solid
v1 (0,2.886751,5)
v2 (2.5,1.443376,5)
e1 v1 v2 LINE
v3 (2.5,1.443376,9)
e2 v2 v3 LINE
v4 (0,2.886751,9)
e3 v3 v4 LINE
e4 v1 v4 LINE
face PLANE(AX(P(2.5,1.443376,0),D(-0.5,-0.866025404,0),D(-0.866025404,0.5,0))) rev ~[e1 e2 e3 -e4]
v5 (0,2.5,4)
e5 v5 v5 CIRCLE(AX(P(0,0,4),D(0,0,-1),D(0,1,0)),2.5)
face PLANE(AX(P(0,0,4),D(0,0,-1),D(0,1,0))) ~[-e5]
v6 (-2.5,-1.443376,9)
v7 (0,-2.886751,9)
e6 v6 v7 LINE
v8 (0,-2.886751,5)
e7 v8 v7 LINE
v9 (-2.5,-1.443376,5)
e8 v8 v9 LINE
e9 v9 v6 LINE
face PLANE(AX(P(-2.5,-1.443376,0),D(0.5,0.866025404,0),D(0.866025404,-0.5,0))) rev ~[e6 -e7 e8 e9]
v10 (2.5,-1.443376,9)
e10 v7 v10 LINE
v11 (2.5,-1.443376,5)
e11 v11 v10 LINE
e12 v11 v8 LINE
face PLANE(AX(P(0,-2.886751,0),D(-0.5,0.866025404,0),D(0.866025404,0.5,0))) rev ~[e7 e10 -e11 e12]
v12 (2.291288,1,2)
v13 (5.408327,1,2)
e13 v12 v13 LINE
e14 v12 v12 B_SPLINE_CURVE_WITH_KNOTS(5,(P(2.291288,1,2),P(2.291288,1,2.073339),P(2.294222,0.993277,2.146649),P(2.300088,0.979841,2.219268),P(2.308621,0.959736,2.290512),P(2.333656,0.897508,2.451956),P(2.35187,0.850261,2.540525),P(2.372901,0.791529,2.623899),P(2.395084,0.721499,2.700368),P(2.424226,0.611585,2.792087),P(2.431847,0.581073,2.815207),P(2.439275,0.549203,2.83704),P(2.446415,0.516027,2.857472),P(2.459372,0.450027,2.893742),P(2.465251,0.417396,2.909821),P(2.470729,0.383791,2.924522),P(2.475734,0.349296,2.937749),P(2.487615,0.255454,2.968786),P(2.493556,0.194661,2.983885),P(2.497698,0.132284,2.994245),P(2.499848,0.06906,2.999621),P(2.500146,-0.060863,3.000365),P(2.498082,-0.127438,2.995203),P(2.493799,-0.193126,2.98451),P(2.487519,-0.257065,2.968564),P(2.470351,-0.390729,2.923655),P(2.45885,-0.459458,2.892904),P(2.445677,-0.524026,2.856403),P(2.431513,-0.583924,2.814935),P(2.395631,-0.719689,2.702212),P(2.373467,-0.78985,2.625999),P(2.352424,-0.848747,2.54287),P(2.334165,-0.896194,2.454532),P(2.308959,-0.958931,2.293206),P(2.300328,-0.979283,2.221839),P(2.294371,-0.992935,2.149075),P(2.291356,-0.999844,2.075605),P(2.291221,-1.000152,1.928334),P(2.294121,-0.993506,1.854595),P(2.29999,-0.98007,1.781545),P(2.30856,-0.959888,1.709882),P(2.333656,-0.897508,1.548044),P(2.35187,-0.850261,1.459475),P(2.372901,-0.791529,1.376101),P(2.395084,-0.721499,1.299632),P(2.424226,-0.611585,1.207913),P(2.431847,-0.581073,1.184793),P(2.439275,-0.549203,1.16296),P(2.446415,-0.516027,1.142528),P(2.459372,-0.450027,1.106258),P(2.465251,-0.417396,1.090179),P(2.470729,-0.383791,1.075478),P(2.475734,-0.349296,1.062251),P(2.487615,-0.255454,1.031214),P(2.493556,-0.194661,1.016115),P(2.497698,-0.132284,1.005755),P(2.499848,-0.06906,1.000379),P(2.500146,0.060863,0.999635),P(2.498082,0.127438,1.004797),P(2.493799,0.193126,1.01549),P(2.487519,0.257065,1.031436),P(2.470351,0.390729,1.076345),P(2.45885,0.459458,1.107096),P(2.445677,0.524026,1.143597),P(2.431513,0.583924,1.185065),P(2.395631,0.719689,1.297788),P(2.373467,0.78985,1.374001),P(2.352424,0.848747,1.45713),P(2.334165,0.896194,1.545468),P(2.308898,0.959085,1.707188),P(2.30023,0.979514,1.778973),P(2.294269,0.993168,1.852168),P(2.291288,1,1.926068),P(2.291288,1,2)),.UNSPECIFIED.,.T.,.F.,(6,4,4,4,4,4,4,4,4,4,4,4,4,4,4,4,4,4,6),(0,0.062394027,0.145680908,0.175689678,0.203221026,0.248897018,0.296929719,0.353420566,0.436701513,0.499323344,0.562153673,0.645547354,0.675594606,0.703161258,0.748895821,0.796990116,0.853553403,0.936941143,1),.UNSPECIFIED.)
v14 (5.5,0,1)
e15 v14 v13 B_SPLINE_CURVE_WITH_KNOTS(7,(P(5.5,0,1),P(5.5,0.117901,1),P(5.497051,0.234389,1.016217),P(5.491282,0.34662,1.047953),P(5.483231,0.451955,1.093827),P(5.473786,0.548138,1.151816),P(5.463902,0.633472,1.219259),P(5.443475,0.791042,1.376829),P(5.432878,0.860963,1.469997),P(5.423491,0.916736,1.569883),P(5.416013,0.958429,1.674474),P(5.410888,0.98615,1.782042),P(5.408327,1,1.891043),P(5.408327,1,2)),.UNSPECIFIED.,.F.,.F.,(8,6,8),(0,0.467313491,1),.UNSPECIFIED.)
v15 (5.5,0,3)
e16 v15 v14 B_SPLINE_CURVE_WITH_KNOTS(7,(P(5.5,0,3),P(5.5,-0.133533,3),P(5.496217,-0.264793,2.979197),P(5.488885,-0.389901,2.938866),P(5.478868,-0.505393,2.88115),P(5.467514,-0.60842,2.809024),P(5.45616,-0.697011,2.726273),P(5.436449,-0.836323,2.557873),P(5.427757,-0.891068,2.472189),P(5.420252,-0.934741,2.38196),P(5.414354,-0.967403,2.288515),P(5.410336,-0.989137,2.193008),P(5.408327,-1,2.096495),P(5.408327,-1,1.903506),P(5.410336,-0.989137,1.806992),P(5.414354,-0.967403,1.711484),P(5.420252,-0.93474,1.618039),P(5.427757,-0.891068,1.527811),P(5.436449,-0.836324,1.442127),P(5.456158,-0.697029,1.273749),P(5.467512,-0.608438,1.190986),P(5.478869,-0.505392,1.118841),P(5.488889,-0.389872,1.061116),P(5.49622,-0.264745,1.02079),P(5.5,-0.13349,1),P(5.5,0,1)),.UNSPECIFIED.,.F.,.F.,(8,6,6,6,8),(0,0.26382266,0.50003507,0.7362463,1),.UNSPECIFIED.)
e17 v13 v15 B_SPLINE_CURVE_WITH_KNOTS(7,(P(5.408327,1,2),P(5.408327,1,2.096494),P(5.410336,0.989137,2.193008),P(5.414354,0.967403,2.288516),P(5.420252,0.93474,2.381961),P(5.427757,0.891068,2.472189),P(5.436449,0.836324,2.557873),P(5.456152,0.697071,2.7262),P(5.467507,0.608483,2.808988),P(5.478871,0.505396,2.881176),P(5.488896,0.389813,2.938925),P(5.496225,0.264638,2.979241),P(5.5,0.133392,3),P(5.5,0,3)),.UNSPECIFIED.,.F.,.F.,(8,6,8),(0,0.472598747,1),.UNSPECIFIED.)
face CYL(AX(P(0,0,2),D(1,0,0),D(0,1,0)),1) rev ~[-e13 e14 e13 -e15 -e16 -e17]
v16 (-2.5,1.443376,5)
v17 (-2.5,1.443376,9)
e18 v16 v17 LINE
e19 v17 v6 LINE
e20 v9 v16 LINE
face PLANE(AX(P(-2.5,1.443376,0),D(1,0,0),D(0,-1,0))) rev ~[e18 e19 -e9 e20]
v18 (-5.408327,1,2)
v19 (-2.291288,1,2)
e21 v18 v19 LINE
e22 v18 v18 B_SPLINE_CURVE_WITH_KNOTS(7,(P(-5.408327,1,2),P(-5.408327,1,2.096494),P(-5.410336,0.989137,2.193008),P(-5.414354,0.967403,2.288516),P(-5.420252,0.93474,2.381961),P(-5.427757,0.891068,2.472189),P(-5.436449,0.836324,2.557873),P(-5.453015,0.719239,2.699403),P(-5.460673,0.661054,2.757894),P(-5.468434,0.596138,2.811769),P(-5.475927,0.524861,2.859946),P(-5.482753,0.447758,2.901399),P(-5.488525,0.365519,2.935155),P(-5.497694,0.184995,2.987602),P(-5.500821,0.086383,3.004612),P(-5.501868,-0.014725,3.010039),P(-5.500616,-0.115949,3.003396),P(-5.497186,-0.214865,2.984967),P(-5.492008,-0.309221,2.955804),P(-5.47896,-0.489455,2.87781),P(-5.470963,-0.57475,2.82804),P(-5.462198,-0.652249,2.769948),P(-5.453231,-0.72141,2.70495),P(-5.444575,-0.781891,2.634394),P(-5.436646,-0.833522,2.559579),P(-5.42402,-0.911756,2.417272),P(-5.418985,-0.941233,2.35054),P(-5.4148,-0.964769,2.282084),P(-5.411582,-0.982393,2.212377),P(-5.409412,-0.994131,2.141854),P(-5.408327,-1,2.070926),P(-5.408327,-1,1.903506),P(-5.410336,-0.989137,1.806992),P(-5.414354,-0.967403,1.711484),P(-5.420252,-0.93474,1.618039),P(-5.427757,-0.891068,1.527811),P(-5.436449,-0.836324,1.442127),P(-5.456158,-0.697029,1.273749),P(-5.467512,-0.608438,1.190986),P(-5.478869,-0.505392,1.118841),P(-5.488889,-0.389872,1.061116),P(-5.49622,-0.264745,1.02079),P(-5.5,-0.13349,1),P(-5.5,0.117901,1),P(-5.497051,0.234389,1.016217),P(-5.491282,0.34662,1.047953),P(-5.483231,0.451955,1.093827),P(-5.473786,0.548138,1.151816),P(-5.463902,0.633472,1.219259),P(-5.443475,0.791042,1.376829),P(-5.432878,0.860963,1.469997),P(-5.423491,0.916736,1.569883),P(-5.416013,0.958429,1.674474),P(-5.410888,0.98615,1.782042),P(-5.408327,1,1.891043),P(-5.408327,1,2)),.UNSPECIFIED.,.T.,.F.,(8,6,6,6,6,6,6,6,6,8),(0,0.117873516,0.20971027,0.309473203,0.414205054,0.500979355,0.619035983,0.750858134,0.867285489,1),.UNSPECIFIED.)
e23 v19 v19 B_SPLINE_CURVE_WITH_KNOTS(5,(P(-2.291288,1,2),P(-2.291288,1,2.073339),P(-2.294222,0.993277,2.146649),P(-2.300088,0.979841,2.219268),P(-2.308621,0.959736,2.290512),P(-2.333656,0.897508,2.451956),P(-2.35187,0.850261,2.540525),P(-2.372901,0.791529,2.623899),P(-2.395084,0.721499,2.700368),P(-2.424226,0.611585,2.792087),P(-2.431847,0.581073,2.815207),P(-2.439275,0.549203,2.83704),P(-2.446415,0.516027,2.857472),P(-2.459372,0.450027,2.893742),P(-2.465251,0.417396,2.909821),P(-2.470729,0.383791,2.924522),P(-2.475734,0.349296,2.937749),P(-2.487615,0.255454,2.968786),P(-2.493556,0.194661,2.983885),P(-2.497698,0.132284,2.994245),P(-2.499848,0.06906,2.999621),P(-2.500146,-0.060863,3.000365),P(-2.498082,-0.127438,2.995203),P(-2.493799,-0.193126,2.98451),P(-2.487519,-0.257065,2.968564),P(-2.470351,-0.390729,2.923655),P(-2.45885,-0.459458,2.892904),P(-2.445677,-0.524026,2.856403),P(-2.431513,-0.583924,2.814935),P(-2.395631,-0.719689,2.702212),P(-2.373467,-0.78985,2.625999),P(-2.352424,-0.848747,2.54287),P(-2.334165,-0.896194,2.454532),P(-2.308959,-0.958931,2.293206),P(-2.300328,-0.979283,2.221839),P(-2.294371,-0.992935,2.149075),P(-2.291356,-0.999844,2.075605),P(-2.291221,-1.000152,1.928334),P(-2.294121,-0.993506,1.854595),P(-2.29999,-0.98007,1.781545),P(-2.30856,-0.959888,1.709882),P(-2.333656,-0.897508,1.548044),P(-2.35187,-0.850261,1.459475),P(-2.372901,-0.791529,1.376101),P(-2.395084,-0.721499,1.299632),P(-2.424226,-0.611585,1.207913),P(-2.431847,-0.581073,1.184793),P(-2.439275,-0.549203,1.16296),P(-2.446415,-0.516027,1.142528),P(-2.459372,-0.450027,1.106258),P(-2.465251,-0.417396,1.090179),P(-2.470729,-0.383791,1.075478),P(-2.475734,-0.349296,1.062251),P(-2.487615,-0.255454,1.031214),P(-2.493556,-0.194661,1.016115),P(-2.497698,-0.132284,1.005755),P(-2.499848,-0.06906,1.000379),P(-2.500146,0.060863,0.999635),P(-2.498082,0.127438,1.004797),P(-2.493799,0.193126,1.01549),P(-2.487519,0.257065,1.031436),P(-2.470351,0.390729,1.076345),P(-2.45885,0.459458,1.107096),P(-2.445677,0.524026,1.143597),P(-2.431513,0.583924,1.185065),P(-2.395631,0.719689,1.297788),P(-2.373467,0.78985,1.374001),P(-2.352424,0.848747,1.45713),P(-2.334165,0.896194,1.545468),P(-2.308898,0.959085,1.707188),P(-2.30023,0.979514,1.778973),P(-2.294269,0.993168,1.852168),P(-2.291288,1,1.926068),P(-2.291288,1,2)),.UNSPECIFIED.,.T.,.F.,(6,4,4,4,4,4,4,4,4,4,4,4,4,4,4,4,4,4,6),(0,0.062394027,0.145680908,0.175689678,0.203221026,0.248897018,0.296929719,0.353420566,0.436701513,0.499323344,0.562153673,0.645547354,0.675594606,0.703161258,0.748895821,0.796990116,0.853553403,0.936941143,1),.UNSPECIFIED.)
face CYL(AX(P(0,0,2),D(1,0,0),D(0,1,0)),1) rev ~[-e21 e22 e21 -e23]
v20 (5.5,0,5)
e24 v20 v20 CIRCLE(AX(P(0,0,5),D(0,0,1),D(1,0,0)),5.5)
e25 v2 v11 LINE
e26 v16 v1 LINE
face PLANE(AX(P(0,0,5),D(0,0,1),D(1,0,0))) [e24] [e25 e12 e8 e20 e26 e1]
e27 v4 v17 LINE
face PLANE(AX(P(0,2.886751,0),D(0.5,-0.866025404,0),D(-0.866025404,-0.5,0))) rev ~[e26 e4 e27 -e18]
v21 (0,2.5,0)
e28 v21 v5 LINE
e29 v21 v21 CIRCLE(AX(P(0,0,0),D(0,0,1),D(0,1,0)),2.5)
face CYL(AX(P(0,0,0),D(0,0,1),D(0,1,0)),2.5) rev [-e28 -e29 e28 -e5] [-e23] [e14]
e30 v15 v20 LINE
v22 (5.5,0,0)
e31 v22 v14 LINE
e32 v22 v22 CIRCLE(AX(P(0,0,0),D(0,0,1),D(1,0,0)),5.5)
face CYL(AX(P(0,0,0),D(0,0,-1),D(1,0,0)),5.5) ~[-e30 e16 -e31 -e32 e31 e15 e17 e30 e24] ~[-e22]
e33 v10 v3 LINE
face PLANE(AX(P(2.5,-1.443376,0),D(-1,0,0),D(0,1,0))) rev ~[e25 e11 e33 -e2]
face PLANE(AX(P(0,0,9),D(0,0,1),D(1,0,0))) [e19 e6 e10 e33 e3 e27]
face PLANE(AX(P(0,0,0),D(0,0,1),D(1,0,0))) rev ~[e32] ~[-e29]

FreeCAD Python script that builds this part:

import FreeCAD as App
import Part
import Sketcher
from FreeCAD import Vector
Q = App.Units.Quantity


def add_polygon(sketch, points):
    """Adds a closed chain of lines whose ends are joined by coincident constraints."""
    first, n = sketch.GeometryCount, len(points)
    for a, b in zip(points, points[1:] + points[:1]):
        sketch.addGeometry(Part.LineSegment(App.Vector(*a, 0), App.Vector(*b, 0)), False)
    for i in range(n):
        sketch.addConstraint(Sketcher.Constraint("Coincident", first + i, 2, first + (i + 1) % n, 1))

doc = App.newDocument("Part")
body = doc.addObject("PartDesign::Body", "Body")

# Sketch on XY plane
sketch1 = body.newObject("Sketcher::SketchObject", "Sketch")
sketch1.AttachmentSupport = (doc.getObject("XY_Plane"), [""])
sketch1.MapMode = "FlatFace"
add_polygon(sketch1, [(0, 2.9), (-2.5, 1.4), (-2.5, -1.4), (0, -2.9), (2.5, -1.4), (2.5, 1.4)])  # lines 0-5
sketch1.addConstraint(Sketcher.Constraint("Vertical", 1))
sketch1.addConstraint(Sketcher.Constraint("Vertical", 4))
sketch1.addConstraint(Sketcher.Constraint("Symmetric", 0, 2, 3, 2, -1, 1))
sketch1.addConstraint(Sketcher.Constraint("Symmetric", 2, 2, 5, 2, -1, 1))
sketch1.addConstraint(Sketcher.Constraint("PointOnObject", 2, 2, -2))
sketch1.addConstraint(Sketcher.Constraint("Parallel", 2, 5))
sketch1.addConstraint(Sketcher.Constraint("Horizontal", 1, 2, 3, 2))
sketch1.addConstraint(Sketcher.Constraint("Angle", 0, Q("-150 deg")))
sketch1.addConstraint(Sketcher.Constraint("DistanceX", 1, 2, 3, 2, Q("5 mm")))
sketch1.addConstraint(Sketcher.Constraint("DistanceY", 1, 2, 1, 1, Q("2.886751 mm")))
pad1 = body.newObject("PartDesign::Pad", "Pad")
pad1.Profile = sketch1
pad1.Length = 9

# Sketch on XY plane
sketch2 = body.newObject("Sketcher::SketchObject", "Sketch001")
sketch2.AttachmentSupport = (doc.getObject("XY_Plane"), [""])
sketch2.MapMode = "FlatFace"
sketch2.addGeometry(Part.Circle(Vector(0, 0, 0), Vector(0, 0, 1), 5.5), False)  # 0
add_polygon(sketch2, [(0, -2.9), (-2.5, -1.4), (-2.5, 1.4), (0, 2.9), (2.5, 1.4), (2.5, -1.4)])  # lines 1-6
sketch2.addConstraint(Sketcher.Constraint("Vertical", 2))
sketch2.addConstraint(Sketcher.Constraint("Vertical", 5))
sketch2.addConstraint(Sketcher.Constraint("Coincident", 0, 3, -1, 1))
sketch2.addConstraint(Sketcher.Constraint("Symmetric", 1, 2, 4, 2, -1, 1))
sketch2.addConstraint(Sketcher.Constraint("Symmetric", 3, 2, 6, 2, -1, 1))
sketch2.addConstraint(Sketcher.Constraint("PointOnObject", 3, 2, -2))
sketch2.addConstraint(Sketcher.Constraint("Parallel", 3, 6))
sketch2.addConstraint(Sketcher.Constraint("Horizontal", 2, 2, 4, 2))
sketch2.addConstraint(Sketcher.Constraint("Diameter", 0, Q("11 mm")))
sketch2.addConstraint(Sketcher.Constraint("Angle", 1, Q("150 deg")))
sketch2.addConstraint(Sketcher.Constraint("DistanceX", 2, 2, 4, 2, Q("5 mm")))
sketch2.addConstraint(Sketcher.Constraint("DistanceY", 2, 1, 2, 2, Q("2.886751 mm")))
pad2 = body.newObject("PartDesign::Pad", "Pad001")
pad2.Profile = sketch2
pad2.Length = 5

# Sketch on YZ plane
sketch3 = body.newObject("Sketcher::SketchObject", "Sketch002")
sketch3.AttachmentSupport = (doc.getObject("YZ_Plane"), [""])
sketch3.MapMode = "FlatFace"
add_polygon(sketch3, [(0, 4), (0, -4), (2.5, -4), (2.5, 4)])  # lines 0-3
sketch3.addConstraint(Sketcher.Constraint("Vertical", 0))
sketch3.addConstraint(Sketcher.Constraint("Horizontal", 1))
sketch3.addConstraint(Sketcher.Constraint("Vertical", 2))
sketch3.addConstraint(Sketcher.Constraint("Horizontal", 3))
sketch3.addConstraint(Sketcher.Constraint("Symmetric", 0, 2, 3, 2, -1, 1))
sketch3.addConstraint(Sketcher.Constraint("DistanceY", 0, 2, 0, 1, Q("8 mm")))
sketch3.addConstraint(Sketcher.Constraint("DistanceX", 1, 1, 1, 2, Q("2.5 mm")))
groove = body.newObject("PartDesign::Groove", "Groove")
groove.Profile = sketch3
groove.ReferenceAxis = (sketch3, ["V_Axis"])
groove.Angle = 360

# Sketch on YZ plane
sketch4 = body.newObject("Sketcher::SketchObject", "Sketch003")
sketch4.AttachmentSupport = (doc.getObject("YZ_Plane"), [""])
sketch4.MapMode = "FlatFace"
sketch4.addGeometry(Part.Circle(Vector(0, 2, 0), Vector(0, 0, 1), 1), False)
sketch4.addConstraint(Sketcher.Constraint("PointOnObject", 0, 3, -2))
sketch4.addConstraint(Sketcher.Constraint("Diameter", 0, Q("2 mm")))
sketch4.addConstraint(Sketcher.Constraint("DistanceY", -1, 1, 0, 3, Q("2 mm")))
pocket1 = body.newObject("PartDesign::Pocket", "Pocket")
pocket1.Profile = sketch4
pocket1.Length = 25
pocket1.Midplane = True

doc.recompute()
